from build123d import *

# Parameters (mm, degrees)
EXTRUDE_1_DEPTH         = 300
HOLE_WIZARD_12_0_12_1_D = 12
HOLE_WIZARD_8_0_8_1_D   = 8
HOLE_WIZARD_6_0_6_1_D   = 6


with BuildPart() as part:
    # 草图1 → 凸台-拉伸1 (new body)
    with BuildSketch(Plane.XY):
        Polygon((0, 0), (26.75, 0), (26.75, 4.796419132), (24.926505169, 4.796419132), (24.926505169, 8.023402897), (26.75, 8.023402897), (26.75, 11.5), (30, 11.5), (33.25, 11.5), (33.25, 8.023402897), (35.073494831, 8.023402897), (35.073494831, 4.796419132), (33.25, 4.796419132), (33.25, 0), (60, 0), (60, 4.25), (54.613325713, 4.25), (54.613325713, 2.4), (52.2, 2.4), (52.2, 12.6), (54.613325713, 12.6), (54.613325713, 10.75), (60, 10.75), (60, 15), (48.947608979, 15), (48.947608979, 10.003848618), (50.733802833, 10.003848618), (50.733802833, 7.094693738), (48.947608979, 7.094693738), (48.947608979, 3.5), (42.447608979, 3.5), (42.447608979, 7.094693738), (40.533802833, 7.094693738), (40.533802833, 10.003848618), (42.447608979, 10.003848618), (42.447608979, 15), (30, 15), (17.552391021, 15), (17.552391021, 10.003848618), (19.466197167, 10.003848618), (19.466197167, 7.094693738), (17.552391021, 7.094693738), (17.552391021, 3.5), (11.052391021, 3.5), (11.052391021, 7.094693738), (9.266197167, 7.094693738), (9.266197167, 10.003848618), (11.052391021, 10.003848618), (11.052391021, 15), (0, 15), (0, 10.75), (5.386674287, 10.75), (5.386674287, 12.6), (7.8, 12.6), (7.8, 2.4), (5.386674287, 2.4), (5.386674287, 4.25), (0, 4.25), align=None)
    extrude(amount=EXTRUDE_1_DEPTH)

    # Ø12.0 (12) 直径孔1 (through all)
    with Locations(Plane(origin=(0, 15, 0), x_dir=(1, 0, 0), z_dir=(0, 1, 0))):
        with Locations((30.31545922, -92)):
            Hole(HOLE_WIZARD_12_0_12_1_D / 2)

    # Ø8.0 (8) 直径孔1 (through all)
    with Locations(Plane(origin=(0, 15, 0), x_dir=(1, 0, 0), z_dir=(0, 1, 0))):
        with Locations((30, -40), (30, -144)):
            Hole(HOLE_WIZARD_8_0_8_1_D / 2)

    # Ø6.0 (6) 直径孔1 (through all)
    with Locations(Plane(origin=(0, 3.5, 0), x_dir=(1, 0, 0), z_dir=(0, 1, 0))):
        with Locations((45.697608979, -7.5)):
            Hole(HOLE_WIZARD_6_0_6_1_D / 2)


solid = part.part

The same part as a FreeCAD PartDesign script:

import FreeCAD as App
import Part
import Sketcher

V = App.Vector
Q = App.Units.Quantity


def add_polygon(sketch, points):
    """Adds a closed chain of lines whose ends are joined by coincident constraints."""
    first, n = sketch.GeometryCount, len(points)
    for a, b in zip(points, points[1:] + points[:1]):
        sketch.addGeometry(Part.LineSegment(App.Vector(*a, 0), App.Vector(*b, 0)), False)
    for i in range(n):
        sketch.addConstraint(Sketcher.Constraint("Coincident", first + i, 2, first + (i + 1) % n, 1))

doc = App.newDocument("Part")
body = doc.addObject("PartDesign::Body", "Body")

# Sketch on XY plane
sketch1 = body.newObject("Sketcher::SketchObject", "Sketch")
sketch1.AttachmentSupport = (doc.getObject("XY_Plane"), [""])
sketch1.MapMode = "FlatFace"
add_polygon(sketch1, [(0, 0), (26.8, 0), (26.8, 4.8), (24.9, 4.8), (24.9, 8), (26.8, 8), (26.8, 11.5), (33.2, 11.5), (33.2, 8), (35.1, 8), (35.1, 4.8), (33.2, 4.8), (33.2, 0), (60, 0), (60, 4.2), (54.6, 4.2), (54.6, 2.4), (52.2, 2.4), (52.2, 12.6), (54.6, 12.6), (54.6, 10.8), (60, 10.8), (60, 15), (48.9, 15), (48.9, 10), (50.7, 10), (50.7, 7.1), (48.9, 7.1), (48.9, 3.5), (42.4, 3.5), (42.4, 7.1), (40.5, 7.1), (40.5, 10), (42.4, 10), (42.4, 15), (17.6, 15), (17.6, 10), (19.5, 10), (19.5, 7.1), (17.6, 7.1), (17.6, 3.5), (11.1, 3.5), (11.1, 7.1), (9.3, 7.1), (9.3, 10), (11.1, 10), (11.1, 15), (0, 15), (0, 10.8), (5.4, 10.8), (5.4, 12.6), (7.8, 12.6), (7.8, 2.4), (5.4, 2.4), (5.4, 4.2), (0, 4.2)])  # lines 0-55
sketch1.addConstraint([
    Sketcher.Constraint("Horizontal", 0),
    Sketcher.Constraint("Vertical", 1),
    Sketcher.Constraint("Horizontal", 2),
    Sketcher.Constraint("Vertical", 3),
    Sketcher.Constraint("Horizontal", 4),
    Sketcher.Constraint("Vertical", 5),
    Sketcher.Constraint("Horizontal", 6),
    Sketcher.Constraint("Vertical", 7),
    Sketcher.Constraint("Horizontal", 8),
    Sketcher.Constraint("Vertical", 9),
    Sketcher.Constraint("Horizontal", 10),
    Sketcher.Constraint("Vertical", 11),
    Sketcher.Constraint("Horizontal", 12),
    Sketcher.Constraint("Vertical", 13),
    Sketcher.Constraint("Horizontal", 14),
    Sketcher.Constraint("Vertical", 15),
    Sketcher.Constraint("Horizontal", 16),
    Sketcher.Constraint("Vertical", 17),
    Sketcher.Constraint("Horizontal", 18),
    Sketcher.Constraint("Vertical", 19),
    Sketcher.Constraint("Horizontal", 20),
    Sketcher.Constraint("Vertical", 21),
    Sketcher.Constraint("Horizontal", 22),
    Sketcher.Constraint("Vertical", 23),
    Sketcher.Constraint("Horizontal", 24),
    Sketcher.Constraint("Vertical", 25),
    Sketcher.Constraint("Horizontal", 26),
    Sketcher.Constraint("Vertical", 27),
    Sketcher.Constraint("Horizontal", 28),
    Sketcher.Constraint("Vertical", 29),
    Sketcher.Constraint("Horizontal", 30),
    Sketcher.Constraint("Vertical", 31),
    Sketcher.Constraint("Horizontal", 32),
    Sketcher.Constraint("Vertical", 33),
    Sketcher.Constraint("Horizontal", 34),
    Sketcher.Constraint("Vertical", 35),
    Sketcher.Constraint("Horizontal", 36),
    Sketcher.Constraint("Vertical", 37),
    Sketcher.Constraint("Horizontal", 38),
    Sketcher.Constraint("Vertical", 39),
    Sketcher.Constraint("Horizontal", 40),
    Sketcher.Constraint("Vertical", 41),
    Sketcher.Constraint("Horizontal", 42),
    Sketcher.Constraint("Vertical", 43),
    Sketcher.Constraint("Horizontal", 44),
    Sketcher.Constraint("Vertical", 45),
    Sketcher.Constraint("Horizontal", 46),
    Sketcher.Constraint("Vertical", 47),
    Sketcher.Constraint("Horizontal", 48),
    Sketcher.Constraint("Vertical", 49),
    Sketcher.Constraint("Horizontal", 50),
    Sketcher.Constraint("Vertical", 51),
    Sketcher.Constraint("Horizontal", 52),
    Sketcher.Constraint("Vertical", 53),
    Sketcher.Constraint("Horizontal", 54),
    Sketcher.Constraint("Vertical", 55),
    Sketcher.Constraint("Coincident", 55, 2, -1, 1),
    Sketcher.Constraint("PointOnObject", 11, 2, -1),
    Sketcher.Constraint("PointOnObject", 46, 2, -2),
    Sketcher.Constraint("Horizontal", 4, 2, 7, 2),
    Sketcher.Constraint("Horizontal", 2, 2, 9, 2),
    Sketcher.Constraint("Horizontal", 26, 2, 29, 2),
    Sketcher.Constraint("Horizontal", 24, 2, 31, 2),
    Sketcher.Constraint("Horizontal", 22, 2, 33, 2),
    Sketcher.Constraint("Horizontal", 32, 2, 35, 2),
    Sketcher.Constraint("Horizontal", 30, 2, 37, 2),
    Sketcher.Constraint("Horizontal", 28, 2, 39, 2),
    Sketcher.Constraint("Horizontal", 38, 2, 41, 2),
    Sketcher.Constraint("Horizontal", 36, 2, 43, 2),
    Sketcher.Constraint("Horizontal", 34, 2, 45, 2),
    Sketcher.Constraint("Horizontal", 20, 2, 47, 2),
    Sketcher.Constraint("Horizontal", 18, 2, 49, 2),
    Sketcher.Constraint("Horizontal", 16, 2, 51, 2),
    Sketcher.Constraint("Horizontal", 14, 2, 53, 2),
    Sketcher.Constraint("Vertical", 1, 2, 4, 2),
    Sketcher.Constraint("Vertical", 7, 2, 10, 2),
    Sketcher.Constraint("Vertical", 15, 2, 18, 2),
    Sketcher.Constraint("Vertical", 13, 2, 20, 2),
    Sketcher.Constraint("Vertical", 23, 2, 26, 2),
    Sketcher.Constraint("Vertical", 29, 2, 32, 2),
    Sketcher.Constraint("Vertical", 35, 2, 38, 2),
    Sketcher.Constraint("Vertical", 41, 2, 44, 2),
    Sketcher.Constraint("Vertical", 49, 2, 52, 2),
    Sketcher.Constraint("Equal", 4, 8),
    Sketcher.Constraint("Equal", 0, 12),
    Sketcher.Constraint("Equal", 6, 28),
    Sketcher.Constraint("Equal", 32, 36),
    Sketcher.Constraint("Equal", 28, 40),
    Sketcher.Constraint("Equal", 26, 42),
    Sketcher.Constraint("Equal", 22, 46),
    Sketcher.Constraint("Equal", 20, 48),
    Sketcher.Constraint("Equal", 18, 50),
    Sketcher.Constraint("Equal", 15, 19),
    Sketcher.Constraint("Equal", 13, 21),
    Sketcher.Constraint("DistanceX", 6, 1, 6, 2, Q("6.5 mm")),
    Sketcher.Constraint("DistanceY", 17, 1, 17, 2, Q("10.2 mm")),
    Sketcher.Constraint("DistanceX", -1, 1, 12, 2, Q("60 mm")),
    Sketcher.Constraint("DistanceY", -1, 1, 21, 2, Q("15 mm")),
    Sketcher.Constraint("DistanceY", 13, 1, 13, 2, Q("4.25 mm")),
    Sketcher.Constraint("DistanceY", -1, 1, 5, 2, Q("11.5 mm")),
    Sketcher.Constraint("DistanceX", -1, 1, 16, 2, Q("52.2 mm")),
    Sketcher.Constraint("DistanceY", -1, 1, 27, 2, Q("3.5 mm")),
    Sketcher.Constraint("DistanceX", 22, 2, 22, 1, Q("11.052391 mm")),
    Sketcher.Constraint("DistanceY", 1, 1, 1, 2, Q("4.796419 mm")),
    Sketcher.Constraint("DistanceY", 23, 2, 23, 1, Q("4.996151 mm")),
    Sketcher.Constraint("DistanceX", 2, 2, 2, 1, Q("1.823495 mm")),
    Sketcher.Constraint("DistanceX", 14, 2, 14, 1, Q("5.386674 mm")),
    Sketcher.Constraint("DistanceX", 24, 1, 24, 2, Q("1.786194 mm")),
    Sketcher.Constraint("DistanceX", 30, 2, 30, 1, Q("1.913806 mm")),
    Sketcher.Constraint("DistanceY", 3, 1, 3, 2, Q("3.226984 mm")),
    Sketcher.Constraint("DistanceY", 25, 2, 25, 1, Q("2.909155 mm")),
])
pad1 = body.newObject("PartDesign::Pad", "Pad")
pad1.Profile = sketch1
pad1.Length = 300

# Sketch on XZ plane
sketch2 = body.newObject("Sketcher::SketchObject", "Sketch001")
sketch2.AttachmentSupport = (doc.getObject("XZ_Plane"), [""])
sketch2.MapMode = "FlatFace"
sketch2.AttachmentOffset = App.Placement(V(0, 0, -15), App.Rotation())
sketch2.addGeometry(Part.Circle(V(30, 92, 0), V(0, 0, 1), 6), False)
sketch2.addConstraint([
    Sketcher.Constraint("Diameter", 0, Q("12 mm")),
    Sketcher.Constraint("DistanceY", -1, 1, 0, 3, Q("92 mm")),
    Sketcher.Constraint("DistanceX", -1, 1, 0, 3, Q("30.315459 mm")),
])
doc.recompute()
hole = body.newObject("PartDesign::Hole", "Hole")
hole.Profile = sketch2
hole.ThreadType = "None"
hole.Diameter = 12
hole.DepthType = "ThroughAll"
hole.Reversed = True

# Sketch on XZ plane
sketch3 = body.newObject("Sketcher::SketchObject", "Sketch002")
sketch3.AttachmentSupport = (doc.getObject("XZ_Plane"), [""])
sketch3.MapMode = "FlatFace"
sketch3.AttachmentOffset = App.Placement(V(0, 0, -15), App.Rotation())
sketch3.addGeometry([
    Part.Circle(V(30, 40, 0), V(0, 0, 1), 4),
    Part.Circle(V(30, 144, 0), V(0, 0, 1), 4),
], False)
sketch3.addConstraint([
    Sketcher.Constraint("Equal", 0, 1),
    Sketcher.Constraint("Vertical", 0, 3, 1, 3),
    Sketcher.Constraint("Diameter", 0, Q("8 mm")),
    Sketcher.Constraint("DistanceX", -1, 1, 0, 3, Q("30 mm")),
    Sketcher.Constraint("DistanceY", -1, 1, 0, 3, Q("40 mm")),
    Sketcher.Constraint("DistanceY", -1, 1, 1, 3, Q("144 mm")),
])
doc.recompute()
hole2 = body.newObject("PartDesign::Hole", "Hole001")
hole2.Profile = sketch3
hole2.ThreadType = "None"
hole2.Diameter = 8
hole2.DepthType = "ThroughAll"
hole2.Reversed = True

# Sketch on XZ plane
sketch4 = body.newObject("Sketcher::SketchObject", "Sketch003")
sketch4.AttachmentSupport = (doc.getObject("XZ_Plane"), [""])
sketch4.MapMode = "FlatFace"
sketch4.AttachmentOffset = App.Placement(V(0, 0, -3.5), App.Rotation())
sketch4.addGeometry(Part.Circle(V(45.7, 7.5, 0), V(0, 0, 1), 3), False)
sketch4.addConstraint([
    Sketcher.Constraint("Diameter", 0, Q("6 mm")),
    Sketcher.Constraint("DistanceY", -1, 1, 0, 3, Q("7.5 mm")),
    Sketcher.Constraint("DistanceX", -1, 1, 0, 3, Q("45.697609 mm")),
])
doc.recompute()
hole3 = body.newObject("PartDesign::Hole", "Hole002")
hole3.Profile = sketch4
hole3.ThreadType = "None"
hole3.Diameter = 6
hole3.DepthType = "ThroughAll"
hole3.Reversed = True

doc.recompute()
